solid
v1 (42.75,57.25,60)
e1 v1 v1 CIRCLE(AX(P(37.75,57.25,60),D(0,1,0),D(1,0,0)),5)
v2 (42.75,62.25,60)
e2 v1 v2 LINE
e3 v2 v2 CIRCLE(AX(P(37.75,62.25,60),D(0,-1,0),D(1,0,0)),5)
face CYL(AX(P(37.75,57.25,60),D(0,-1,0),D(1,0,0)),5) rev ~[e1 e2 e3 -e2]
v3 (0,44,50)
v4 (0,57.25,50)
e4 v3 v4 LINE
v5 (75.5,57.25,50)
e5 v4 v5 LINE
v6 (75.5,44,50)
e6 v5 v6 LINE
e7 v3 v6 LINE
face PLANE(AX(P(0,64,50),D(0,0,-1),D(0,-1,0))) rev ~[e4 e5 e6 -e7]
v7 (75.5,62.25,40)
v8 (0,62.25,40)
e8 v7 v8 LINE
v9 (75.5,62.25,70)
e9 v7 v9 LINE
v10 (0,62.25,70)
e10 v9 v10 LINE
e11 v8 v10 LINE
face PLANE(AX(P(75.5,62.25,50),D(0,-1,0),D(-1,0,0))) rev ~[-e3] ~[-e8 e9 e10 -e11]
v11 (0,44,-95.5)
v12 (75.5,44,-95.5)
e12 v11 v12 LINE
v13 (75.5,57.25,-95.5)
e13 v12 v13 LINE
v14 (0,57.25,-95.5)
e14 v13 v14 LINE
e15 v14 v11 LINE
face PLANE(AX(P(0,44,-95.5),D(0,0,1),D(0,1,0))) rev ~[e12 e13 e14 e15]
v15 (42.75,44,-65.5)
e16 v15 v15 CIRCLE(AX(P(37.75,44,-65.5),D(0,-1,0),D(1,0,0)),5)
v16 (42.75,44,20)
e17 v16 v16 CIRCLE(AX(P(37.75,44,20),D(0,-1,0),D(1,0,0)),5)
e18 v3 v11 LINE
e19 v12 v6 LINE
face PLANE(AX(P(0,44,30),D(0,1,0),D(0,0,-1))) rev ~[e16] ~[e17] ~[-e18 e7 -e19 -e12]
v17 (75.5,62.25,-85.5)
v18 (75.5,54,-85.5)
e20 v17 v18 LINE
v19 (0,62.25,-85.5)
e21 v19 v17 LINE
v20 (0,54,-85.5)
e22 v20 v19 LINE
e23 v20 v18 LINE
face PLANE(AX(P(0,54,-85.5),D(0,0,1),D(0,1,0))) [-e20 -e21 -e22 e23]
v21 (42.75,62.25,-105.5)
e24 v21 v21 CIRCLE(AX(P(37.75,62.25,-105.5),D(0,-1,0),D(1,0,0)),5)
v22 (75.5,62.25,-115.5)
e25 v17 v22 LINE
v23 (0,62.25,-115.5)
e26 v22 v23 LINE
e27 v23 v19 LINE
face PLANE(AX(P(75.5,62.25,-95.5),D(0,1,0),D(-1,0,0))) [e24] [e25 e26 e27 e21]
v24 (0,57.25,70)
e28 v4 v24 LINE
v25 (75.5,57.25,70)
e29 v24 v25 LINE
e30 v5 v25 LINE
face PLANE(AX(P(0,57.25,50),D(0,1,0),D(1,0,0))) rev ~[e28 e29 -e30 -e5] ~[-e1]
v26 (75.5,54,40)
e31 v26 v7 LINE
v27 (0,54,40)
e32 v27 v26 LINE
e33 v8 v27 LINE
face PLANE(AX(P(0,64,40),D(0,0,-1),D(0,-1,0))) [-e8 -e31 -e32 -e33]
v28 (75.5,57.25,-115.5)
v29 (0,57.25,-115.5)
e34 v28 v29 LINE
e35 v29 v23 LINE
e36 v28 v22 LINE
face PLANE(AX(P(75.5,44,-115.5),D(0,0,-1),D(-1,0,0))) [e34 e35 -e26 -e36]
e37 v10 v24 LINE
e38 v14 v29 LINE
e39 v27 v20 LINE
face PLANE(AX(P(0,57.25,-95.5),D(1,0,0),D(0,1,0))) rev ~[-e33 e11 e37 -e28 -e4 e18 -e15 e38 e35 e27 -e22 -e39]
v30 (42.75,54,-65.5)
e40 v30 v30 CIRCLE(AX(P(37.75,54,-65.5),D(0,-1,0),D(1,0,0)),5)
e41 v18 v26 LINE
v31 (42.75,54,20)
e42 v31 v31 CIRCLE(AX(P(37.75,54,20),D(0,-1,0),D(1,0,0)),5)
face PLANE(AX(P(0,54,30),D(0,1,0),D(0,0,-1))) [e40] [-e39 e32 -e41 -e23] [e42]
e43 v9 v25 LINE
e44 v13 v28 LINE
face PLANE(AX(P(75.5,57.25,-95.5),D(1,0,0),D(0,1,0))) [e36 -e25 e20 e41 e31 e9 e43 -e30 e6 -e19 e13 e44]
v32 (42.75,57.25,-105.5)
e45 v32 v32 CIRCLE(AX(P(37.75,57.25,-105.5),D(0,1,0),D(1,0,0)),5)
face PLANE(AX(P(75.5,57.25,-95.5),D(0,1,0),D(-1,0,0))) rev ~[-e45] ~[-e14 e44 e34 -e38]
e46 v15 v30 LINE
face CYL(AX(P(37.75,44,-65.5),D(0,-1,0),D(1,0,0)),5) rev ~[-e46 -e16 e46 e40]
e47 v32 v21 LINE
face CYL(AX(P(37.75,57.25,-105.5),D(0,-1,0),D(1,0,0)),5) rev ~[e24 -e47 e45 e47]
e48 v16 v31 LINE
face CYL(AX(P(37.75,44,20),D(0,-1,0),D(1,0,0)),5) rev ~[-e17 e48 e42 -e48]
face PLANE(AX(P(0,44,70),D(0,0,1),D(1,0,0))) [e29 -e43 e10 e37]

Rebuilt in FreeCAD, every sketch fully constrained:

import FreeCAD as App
import Part
import Sketcher
from FreeCAD import Vector
Q = App.Units.Quantity


def add_polygon(sketch, points):
    """Adds a closed chain of lines whose ends are joined by coincident constraints."""
    first, n = sketch.GeometryCount, len(points)
    for a, b in zip(points, points[1:] + points[:1]):
        sketch.addGeometry(Part.LineSegment(App.Vector(*a, 0), App.Vector(*b, 0)), False)
    for i in range(n):
        sketch.addConstraint(Sketcher.Constraint("Coincident", first + i, 2, first + (i + 1) % n, 1))

doc = App.newDocument("Part")
body = doc.addObject("PartDesign::Body", "Body")

# Sketch on YZ plane
sketch1 = body.newObject("Sketcher::SketchObject", "Sketch")
sketch1.AttachmentSupport = (doc.getObject("YZ_Plane"), [""])
sketch1.MapMode = "FlatFace"
add_polygon(sketch1, [(44, -96), (136, -96), (136, -86), (54, -86), (54, 40), (136, 40), (136, 50), (44, 50)])  # lines 0-7
sketch1.addConstraint(Sketcher.Constraint("Horizontal", 0))
sketch1.addConstraint(Sketcher.Constraint("Vertical", 1))
sketch1.addConstraint(Sketcher.Constraint("Horizontal", 2))
sketch1.addConstraint(Sketcher.Constraint("Vertical", 3))
sketch1.addConstraint(Sketcher.Constraint("Horizontal", 4))
sketch1.addConstraint(Sketcher.Constraint("Vertical", 5))
sketch1.addConstraint(Sketcher.Constraint("Horizontal", 6))
sketch1.addConstraint(Sketcher.Constraint("Vertical", 7))
sketch1.addConstraint(Sketcher.Constraint("Vertical", 1, 2, 4, 2))
sketch1.addConstraint(Sketcher.Constraint("Equal", 1, 5))
sketch1.addConstraint(Sketcher.Constraint("DistanceY", 1, 1, 1, 2, Q("10 mm")))
sketch1.addConstraint(Sketcher.Constraint("DistanceX", 6, 2, 3, 2, Q("10 mm")))
sketch1.addConstraint(Sketcher.Constraint("DistanceX", 0, 1, 0, 2, Q("92 mm")))
sketch1.addConstraint(Sketcher.Constraint("DistanceY", 3, 1, 3, 2, Q("125.5 mm")))
sketch1.addConstraint(Sketcher.Constraint("DistanceX", -1, 1, 0, 2, Q("136 mm")))
sketch1.addConstraint(Sketcher.Constraint("DistanceY", -1, 1, 3, 2, Q("40 mm")))
pad1 = body.newObject("PartDesign::Pad", "Pad")
pad1.Profile = sketch1
pad1.Length = 75.5

# Sketch on XZ plane
sketch2 = body.newObject("Sketcher::SketchObject", "Sketch001")
sketch2.AttachmentSupport = (doc.getObject("XZ_Plane"), [""])
sketch2.MapMode = "FlatFace"
sketch2.AttachmentOffset = App.Placement(Vector(0, 0, -44), App.Rotation())
sketch2.addGeometry(Part.Circle(Vector(38, -66, 0), Vector(0, 0, 1), 5), False)
sketch2.addGeometry(Part.Circle(Vector(38, 20, 0), Vector(0, 0, 1), 5), False)
sketch2.addConstraint(Sketcher.Constraint("Equal", 0, 1))
sketch2.addConstraint(Sketcher.Constraint("Vertical", 0, 3, 1, 3))
sketch2.addConstraint(Sketcher.Constraint("Diameter", 0, Q("10 mm")))
sketch2.addConstraint(Sketcher.Constraint("DistanceY", -1, 1, 1, 3, Q("20 mm")))
sketch2.addConstraint(Sketcher.Constraint("DistanceY", 0, 3, -1, 1, Q("65.5 mm")))
sketch2.addConstraint(Sketcher.Constraint("DistanceX", -1, 1, 0, 3, Q("37.75 mm")))
pocket1 = body.newObject("PartDesign::Pocket", "Pocket")
pocket1.Profile = sketch2
pocket1.Length = 75.5

# Sketch on XY plane
sketch3 = body.newObject("Sketcher::SketchObject", "Sketch002")
sketch3.AttachmentSupport = (doc.getObject("XY_Plane"), [""])
sketch3.MapMode = "FlatFace"
sketch3.AttachmentOffset = App.Placement(Vector(0, 0, -95.5), App.Rotation())
sketch3.addGeometry(Part.Circle(Vector(26, 108, 0), Vector(0, 0, 1), 5), False)
sketch3.addGeometry(Part.Circle(Vector(59, 108, 0), Vector(0, 0, 1), 5), False)
sketch3.addConstraint(Sketcher.Constraint("Equal", 0, 1))
sketch3.addConstraint(Sketcher.Constraint("Horizontal", 0, 3, 1, 3))
sketch3.addConstraint(Sketcher.Constraint("Diameter", 0, Q("10 mm")))
sketch3.addConstraint(Sketcher.Constraint("DistanceY", -1, 1, 0, 3, Q("108.25 mm")))
sketch3.addConstraint(Sketcher.Constraint("DistanceX", 0, 3, 1, 3, Q("32.75 mm")))
sketch3.addConstraint(Sketcher.Constraint("DistanceX", -1, 1, 0, 3, Q("26.375 mm")))
pocket2 = body.newObject("PartDesign::Pocket", "Pocket001")
pocket2.Profile = sketch3
pocket2.Type = "ThroughAll"
pocket2.Reversed = True

# Sketch on XY plane
sketch4 = body.newObject("Sketcher::SketchObject", "Sketch003")
sketch4.AttachmentSupport = (doc.getObject("XY_Plane"), [""])
sketch4.MapMode = "FlatFace"
sketch4.AttachmentOffset = App.Placement(Vector(0, 0, -95.5), App.Rotation())
add_polygon(sketch4, [(76, 62), (0, 62), (0, 136), (76, 136)])  # lines 0-3
sketch4.addConstraint(Sketcher.Constraint("Horizontal", 0))
sketch4.addConstraint(Sketcher.Constraint("Vertical", 1))
sketch4.addConstraint(Sketcher.Constraint("Horizontal", 2))
sketch4.addConstraint(Sketcher.Constraint("Vertical", 3))
sketch4.addConstraint(Sketcher.Constraint("PointOnObject", 0, 2, -2))
sketch4.addConstraint(Sketcher.Constraint("DistanceX", 0, 2, 0, 1, Q("75.5 mm")))
sketch4.addConstraint(Sketcher.Constraint("DistanceY", -1, 1, 1, 2, Q("136 mm")))
sketch4.addConstraint(Sketcher.Constraint("DistanceY", 1, 1, 1, 2, Q("73.75 mm")))
pocket3 = body.newObject("PartDesign::Pocket", "Pocket002")
pocket3.Profile = sketch4
pocket3.Type = "ThroughAll"
pocket3.Reversed = True

# Sketch on XY plane
sketch5 = body.newObject("Sketcher::SketchObject", "Sketch004")
sketch5.AttachmentSupport = (doc.getObject("XY_Plane"), [""])
sketch5.MapMode = "FlatFace"
sketch5.AttachmentOffset = App.Placement(Vector(0, 0, 50), App.Rotation())
add_polygon(sketch5, [(76, 57), (76, 62), (0, 62), (0, 57)])  # lines 0-3
sketch5.addConstraint(Sketcher.Constraint("Vertical", 0))
sketch5.addConstraint(Sketcher.Constraint("Horizontal", 1))
sketch5.addConstraint(Sketcher.Constraint("Vertical", 2))
sketch5.addConstraint(Sketcher.Constraint("Horizontal", 3))
sketch5.addConstraint(Sketcher.Constraint("PointOnObject", 1, 2, -2))
sketch5.addConstraint(Sketcher.Constraint("DistanceY", 0, 1, 0, 2, Q("5 mm")))
sketch5.addConstraint(Sketcher.Constraint("DistanceX", 1, 2, 1, 1, Q("75.5 mm")))
sketch5.addConstraint(Sketcher.Constraint("DistanceY", -1, 1, 0, 2, Q("62.25 mm")))
pad2 = body.newObject("PartDesign::Pad", "Pad001")
pad2.Profile = sketch5
pad2.Length = 20

# Sketch on XY plane
sketch6 = body.newObject("Sketcher::SketchObject", "Sketch005")
sketch6.AttachmentSupport = (doc.getObject("XY_Plane"), [""])
sketch6.MapMode = "FlatFace"
sketch6.AttachmentOffset = App.Placement(Vector(0, 0, -95.5), App.Rotation())
add_polygon(sketch6, [(0, 62), (76, 62), (76, 57), (0, 57)])  # lines 0-3
sketch6.addConstraint(Sketcher.Constraint("Horizontal", 0))
sketch6.addConstraint(Sketcher.Constraint("Vertical", 1))
sketch6.addConstraint(Sketcher.Constraint("Horizontal", 2))
sketch6.addConstraint(Sketcher.Constraint("Vertical", 3))
sketch6.addConstraint(Sketcher.Constraint("PointOnObject", 2, 2, -2))
sketch6.addConstraint(Sketcher.Constraint("DistanceY", 1, 2, 1, 1, Q("5 mm")))
sketch6.addConstraint(Sketcher.Constraint("DistanceX", 0, 1, 0, 2, Q("75.5 mm")))
sketch6.addConstraint(Sketcher.Constraint("DistanceY", -1, 1, 0, 2, Q("62.25 mm")))
pad3 = body.newObject("PartDesign::Pad", "Pad002")
pad3.Profile = sketch6
pad3.Length = 20
pad3.Reversed = True

# Sketch on XZ plane
sketch7 = body.newObject("Sketcher::SketchObject", "Sketch006")
sketch7.AttachmentSupport = (doc.getObject("XZ_Plane"), [""])
sketch7.MapMode = "FlatFace"
sketch7.AttachmentOffset = App.Placement(Vector(0, 0, -57.25), App.Rotation())
sketch7.addGeometry(Part.Circle(Vector(38, -106, 0), Vector(0, 0, 1), 5), False)
sketch7.addGeometry(Part.Circle(Vector(38, 60, 0), Vector(0, 0, 1), 5), False)
sketch7.addConstraint(Sketcher.Constraint("Equal", 0, 1))
sketch7.addConstraint(Sketcher.Constraint("Vertical", 0, 3, 1, 3))
sketch7.addConstraint(Sketcher.Constraint("Diameter", 0, Q("10 mm")))
sketch7.addConstraint(Sketcher.Constraint("DistanceY", -1, 1, 1, 3, Q("60 mm")))
sketch7.addConstraint(Sketcher.Constraint("DistanceY", 0, 3, -1, 1, Q("105.5 mm")))
sketch7.addConstraint(Sketcher.Constraint("DistanceX", -1, 1, 0, 3, Q("37.75 mm")))
pocket4 = body.newObject("PartDesign::Pocket", "Pocket003")
pocket4.Profile = sketch7
pocket4.Length = 20

doc.recompute()
